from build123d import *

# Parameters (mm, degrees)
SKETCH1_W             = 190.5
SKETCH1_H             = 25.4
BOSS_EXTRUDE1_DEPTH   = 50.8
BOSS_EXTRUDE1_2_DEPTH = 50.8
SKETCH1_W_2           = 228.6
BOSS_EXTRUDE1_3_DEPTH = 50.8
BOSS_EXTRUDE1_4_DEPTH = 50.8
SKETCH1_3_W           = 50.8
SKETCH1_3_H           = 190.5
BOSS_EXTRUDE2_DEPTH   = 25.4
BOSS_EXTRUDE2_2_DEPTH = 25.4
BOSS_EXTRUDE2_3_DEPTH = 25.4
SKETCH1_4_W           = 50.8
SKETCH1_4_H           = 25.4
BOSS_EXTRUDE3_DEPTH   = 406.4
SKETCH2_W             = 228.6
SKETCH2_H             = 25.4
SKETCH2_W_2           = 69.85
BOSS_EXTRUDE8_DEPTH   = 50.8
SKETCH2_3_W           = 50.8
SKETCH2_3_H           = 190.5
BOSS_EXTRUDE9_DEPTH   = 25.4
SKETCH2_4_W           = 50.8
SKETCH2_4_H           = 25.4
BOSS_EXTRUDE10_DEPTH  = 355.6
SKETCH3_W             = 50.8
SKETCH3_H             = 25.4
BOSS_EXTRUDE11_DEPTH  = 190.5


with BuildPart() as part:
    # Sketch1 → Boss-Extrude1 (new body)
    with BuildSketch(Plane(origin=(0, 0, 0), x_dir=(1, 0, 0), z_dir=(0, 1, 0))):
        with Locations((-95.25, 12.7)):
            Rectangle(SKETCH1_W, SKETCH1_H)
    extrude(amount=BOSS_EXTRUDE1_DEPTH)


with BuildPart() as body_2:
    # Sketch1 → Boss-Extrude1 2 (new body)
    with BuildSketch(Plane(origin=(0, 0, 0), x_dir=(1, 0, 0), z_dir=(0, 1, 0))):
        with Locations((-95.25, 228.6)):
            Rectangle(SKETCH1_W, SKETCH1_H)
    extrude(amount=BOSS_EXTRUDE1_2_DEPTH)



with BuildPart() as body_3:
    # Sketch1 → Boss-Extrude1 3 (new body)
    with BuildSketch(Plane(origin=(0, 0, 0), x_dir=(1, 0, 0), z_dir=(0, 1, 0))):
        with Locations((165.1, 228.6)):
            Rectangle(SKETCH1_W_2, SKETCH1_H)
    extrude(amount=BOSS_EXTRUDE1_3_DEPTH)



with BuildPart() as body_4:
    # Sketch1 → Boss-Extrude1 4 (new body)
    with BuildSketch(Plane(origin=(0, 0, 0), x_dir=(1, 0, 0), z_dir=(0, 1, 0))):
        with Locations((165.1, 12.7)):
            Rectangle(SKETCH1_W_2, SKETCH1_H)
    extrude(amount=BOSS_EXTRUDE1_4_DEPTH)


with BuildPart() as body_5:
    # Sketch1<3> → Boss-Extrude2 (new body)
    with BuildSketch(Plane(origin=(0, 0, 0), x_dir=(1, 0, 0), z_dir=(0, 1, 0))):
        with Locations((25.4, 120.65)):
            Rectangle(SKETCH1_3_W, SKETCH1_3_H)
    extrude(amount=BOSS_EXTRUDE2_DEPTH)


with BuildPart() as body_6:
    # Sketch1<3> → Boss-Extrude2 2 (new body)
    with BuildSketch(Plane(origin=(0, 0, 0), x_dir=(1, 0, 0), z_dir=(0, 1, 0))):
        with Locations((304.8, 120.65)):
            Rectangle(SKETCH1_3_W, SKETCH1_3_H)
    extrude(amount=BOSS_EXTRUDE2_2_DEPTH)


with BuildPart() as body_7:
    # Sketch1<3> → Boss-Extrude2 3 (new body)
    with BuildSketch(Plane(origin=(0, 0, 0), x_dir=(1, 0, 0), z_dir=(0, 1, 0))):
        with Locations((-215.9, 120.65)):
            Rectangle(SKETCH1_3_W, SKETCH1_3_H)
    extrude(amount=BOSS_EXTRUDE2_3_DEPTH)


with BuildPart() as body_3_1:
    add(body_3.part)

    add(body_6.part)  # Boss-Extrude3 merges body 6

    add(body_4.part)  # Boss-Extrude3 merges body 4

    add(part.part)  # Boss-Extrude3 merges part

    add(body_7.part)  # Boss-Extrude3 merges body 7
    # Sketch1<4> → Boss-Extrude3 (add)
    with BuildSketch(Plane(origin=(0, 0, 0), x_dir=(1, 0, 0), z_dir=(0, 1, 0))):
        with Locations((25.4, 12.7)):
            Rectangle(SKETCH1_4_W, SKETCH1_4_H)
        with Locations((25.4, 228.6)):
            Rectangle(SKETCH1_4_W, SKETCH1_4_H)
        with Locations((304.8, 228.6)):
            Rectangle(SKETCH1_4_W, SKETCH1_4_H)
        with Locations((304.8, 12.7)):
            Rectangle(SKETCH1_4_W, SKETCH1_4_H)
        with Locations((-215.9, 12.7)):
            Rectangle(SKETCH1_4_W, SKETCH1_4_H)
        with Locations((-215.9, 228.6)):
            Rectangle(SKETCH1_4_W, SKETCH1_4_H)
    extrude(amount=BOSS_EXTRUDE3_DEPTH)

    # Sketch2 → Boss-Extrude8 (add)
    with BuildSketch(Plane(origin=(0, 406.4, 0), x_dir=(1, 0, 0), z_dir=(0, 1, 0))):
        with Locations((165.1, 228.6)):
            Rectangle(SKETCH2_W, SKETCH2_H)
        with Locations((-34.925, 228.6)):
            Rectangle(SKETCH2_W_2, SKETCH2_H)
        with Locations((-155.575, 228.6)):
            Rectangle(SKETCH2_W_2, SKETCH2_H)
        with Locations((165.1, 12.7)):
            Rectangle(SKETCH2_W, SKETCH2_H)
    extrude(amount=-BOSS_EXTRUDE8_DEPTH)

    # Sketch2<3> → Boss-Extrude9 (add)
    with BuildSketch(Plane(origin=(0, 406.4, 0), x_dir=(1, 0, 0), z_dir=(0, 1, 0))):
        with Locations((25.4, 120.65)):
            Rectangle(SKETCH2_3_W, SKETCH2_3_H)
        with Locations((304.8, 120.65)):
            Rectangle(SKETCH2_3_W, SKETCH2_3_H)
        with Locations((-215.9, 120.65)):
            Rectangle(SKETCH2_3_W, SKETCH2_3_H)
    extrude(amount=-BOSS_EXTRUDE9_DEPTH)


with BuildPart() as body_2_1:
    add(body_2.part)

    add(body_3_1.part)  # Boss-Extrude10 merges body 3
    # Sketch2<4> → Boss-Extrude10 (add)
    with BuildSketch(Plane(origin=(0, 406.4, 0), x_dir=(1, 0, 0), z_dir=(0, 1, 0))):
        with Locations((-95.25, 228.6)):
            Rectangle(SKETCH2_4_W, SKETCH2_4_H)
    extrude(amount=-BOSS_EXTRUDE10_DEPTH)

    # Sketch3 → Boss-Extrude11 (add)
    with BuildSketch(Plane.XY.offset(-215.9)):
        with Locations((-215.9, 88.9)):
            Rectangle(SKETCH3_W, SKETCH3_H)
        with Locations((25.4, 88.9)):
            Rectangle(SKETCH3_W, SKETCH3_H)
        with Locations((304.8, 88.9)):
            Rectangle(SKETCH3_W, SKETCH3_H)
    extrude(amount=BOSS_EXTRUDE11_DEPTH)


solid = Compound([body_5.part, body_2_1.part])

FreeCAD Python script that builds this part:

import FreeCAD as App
import Part
import Sketcher
Q = App.Units.Quantity


def add_polygon(sketch, points):
    """Adds a closed chain of lines whose ends are joined by coincident constraints."""
    first, n = sketch.GeometryCount, len(points)
    for a, b in zip(points, points[1:] + points[:1]):
        sketch.addGeometry(Part.LineSegment(App.Vector(*a, 0), App.Vector(*b, 0)), False)
    for i in range(n):
        sketch.addConstraint(Sketcher.Constraint("Coincident", first + i, 2, first + (i + 1) % n, 1))

doc = App.newDocument("Part")
body = doc.addObject("PartDesign::Body", "Body")

# Sketch on XZ plane
sketch1 = doc.addObject("Sketcher::SketchObject", "Sketch")
body.addObject(sketch1)
sketch1.AttachmentSupport = (doc.XZ_Plane, [""])
sketch1.MapMode = "FlatFace"
add_polygon(sketch1, [(-190.5, -25.4), (-190.5, 0), (0, 0), (0, -25.4)])  # lines 0-3
sketch1.addConstraint([
    Sketcher.Constraint("Vertical", 0),
    Sketcher.Constraint("Horizontal", 1),
    Sketcher.Constraint("Vertical", 2),
    Sketcher.Constraint("Horizontal", 3),
    Sketcher.Constraint("Coincident", 1, 2, -1, 1),
    Sketcher.Constraint("DistanceY", 0, 1, 0, 2, Q("1 in")),
    Sketcher.Constraint("DistanceX", 1, 1, 1, 2, Q("7.5 in")),
])
pad1 = doc.addObject("PartDesign::Pad", "Pad")
body.addObject(pad1)
pad1.Profile = sketch1
pad1.Length = Q("2 in")
pad1.Reversed = True
body2 = doc.addObject("PartDesign::Body", "Body001")

# Sketch on XZ plane
sketch2 = doc.addObject("Sketcher::SketchObject", "Sketch001")
body2.addObject(sketch2)
sketch2.AttachmentSupport = (doc.getObject("XZ_Plane001"), [""])
sketch2.MapMode = "FlatFace"
add_polygon(sketch2, [(-190.5, -241.3), (-190.5, -215.9), (0, -215.9), (0, -241.3)])  # lines 0-3
sketch2.addConstraint([
    Sketcher.Constraint("Vertical", 0),
    Sketcher.Constraint("Horizontal", 1),
    Sketcher.Constraint("Vertical", 2),
    Sketcher.Constraint("Horizontal", 3),
    Sketcher.Constraint("PointOnObject", 1, 2, -2),
    Sketcher.Constraint("DistanceY", 0, 1, 0, 2, Q("1 in")),
    Sketcher.Constraint("DistanceX", 1, 1, 1, 2, Q("7.5 in")),
    Sketcher.Constraint("DistanceY", 0, 2, -1, 1, Q("8.5 in")),
])
pad2 = doc.addObject("PartDesign::Pad", "Pad001")
body2.addObject(pad2)
pad2.Profile = sketch2
pad2.Length = Q("2 in")
pad2.Reversed = True
body3 = doc.addObject("PartDesign::Body", "Body002")

# Sketch on XZ plane
sketch3 = doc.addObject("Sketcher::SketchObject", "Sketch002")
body3.addObject(sketch3)
sketch3.AttachmentSupport = (doc.getObject("XZ_Plane002"), [""])
sketch3.MapMode = "FlatFace"
add_polygon(sketch3, [(50.8, -241.3), (50.8, -215.9), (279.4, -215.9), (279.4, -241.3)])  # lines 0-3
sketch3.addConstraint([
    Sketcher.Constraint("Vertical", 0),
    Sketcher.Constraint("Horizontal", 1),
    Sketcher.Constraint("Vertical", 2),
    Sketcher.Constraint("Horizontal", 3),
    Sketcher.Constraint("DistanceX", 1, 1, 1, 2, Q("9 in")),
    Sketcher.Constraint("DistanceY", 0, 1, 0, 2, Q("1 in")),
    Sketcher.Constraint("DistanceX", -1, 1, 0, 2, Q("2 in")),
    Sketcher.Constraint("DistanceY", 0, 2, -1, 1, Q("8.5 in")),
])
pad3 = doc.addObject("PartDesign::Pad", "Pad002")
body3.addObject(pad3)
pad3.Profile = sketch3
pad3.Length = Q("2 in")
pad3.Reversed = True
body4 = doc.addObject("PartDesign::Body", "Body003")

# Sketch on XZ plane
sketch4 = doc.addObject("Sketcher::SketchObject", "Sketch003")
body4.addObject(sketch4)
sketch4.AttachmentSupport = (doc.getObject("XZ_Plane003"), [""])
sketch4.MapMode = "FlatFace"
add_polygon(sketch4, [(50.8, -25.4), (50.8, 0), (279.4, 0), (279.4, -25.4)])  # lines 0-3
sketch4.addConstraint([
    Sketcher.Constraint("Vertical", 0),
    Sketcher.Constraint("Horizontal", 1),
    Sketcher.Constraint("Vertical", 2),
    Sketcher.Constraint("Horizontal", 3),
    Sketcher.Constraint("PointOnObject", 0, 2, -1),
    Sketcher.Constraint("DistanceX", 1, 1, 1, 2, Q("9 in")),
    Sketcher.Constraint("DistanceY", 0, 1, 0, 2, Q("1 in")),
    Sketcher.Constraint("DistanceX", -1, 1, 0, 2, Q("2 in")),
])
pad4 = doc.addObject("PartDesign::Pad", "Pad003")
body4.addObject(pad4)
pad4.Profile = sketch4
pad4.Length = Q("2 in")
pad4.Reversed = True
body5 = doc.addObject("PartDesign::Body", "Body004")

# Sketch on XZ plane
sketch5 = doc.addObject("Sketcher::SketchObject", "Sketch004")
body5.addObject(sketch5)
sketch5.AttachmentSupport = (doc.getObject("XZ_Plane004"), [""])
sketch5.MapMode = "FlatFace"
add_polygon(sketch5, [(0, -215.9), (0, -25.4), (50.8, -25.4), (50.8, -215.9)])  # lines 0-3
sketch5.addConstraint([
    Sketcher.Constraint("Vertical", 0),
    Sketcher.Constraint("Horizontal", 1),
    Sketcher.Constraint("Vertical", 2),
    Sketcher.Constraint("Horizontal", 3),
    Sketcher.Constraint("PointOnObject", 0, 2, -2),
    Sketcher.Constraint("DistanceX", 1, 1, 1, 2, Q("2 in")),
    Sketcher.Constraint("DistanceY", 0, 1, 0, 2, Q("7.5 in")),
    Sketcher.Constraint("DistanceY", 0, 2, -1, 1, Q("1 in")),
])
pad5 = doc.addObject("PartDesign::Pad", "Pad004")
body5.addObject(pad5)
pad5.Profile = sketch5
pad5.Length = Q("1 in")
pad5.Reversed = True
body6 = doc.addObject("PartDesign::Body", "Body005")

# Sketch on XZ plane
sketch6 = doc.addObject("Sketcher::SketchObject", "Sketch005")
body6.addObject(sketch6)
sketch6.AttachmentSupport = (doc.getObject("XZ_Plane005"), [""])
sketch6.MapMode = "FlatFace"
add_polygon(sketch6, [(279.4, -215.9), (279.4, -25.4), (330.2, -25.4), (330.2, -215.9)])  # lines 0-3
sketch6.addConstraint([
    Sketcher.Constraint("Vertical", 0),
    Sketcher.Constraint("Horizontal", 1),
    Sketcher.Constraint("Vertical", 2),
    Sketcher.Constraint("Horizontal", 3),
    Sketcher.Constraint("DistanceX", 1, 1, 1, 2, Q("2 in")),
    Sketcher.Constraint("DistanceY", 0, 1, 0, 2, Q("7.5 in")),
    Sketcher.Constraint("DistanceX", -1, 1, 0, 2, Q("11 in")),
    Sketcher.Constraint("DistanceY", 0, 2, -1, 1, Q("1 in")),
])
pad6 = doc.addObject("PartDesign::Pad", "Pad005")
body6.addObject(pad6)
pad6.Profile = sketch6
pad6.Length = Q("1 in")
pad6.Reversed = True
body7 = doc.addObject("PartDesign::Body", "Body006")

# Sketch on XZ plane
sketch7 = doc.addObject("Sketcher::SketchObject", "Sketch006")
body7.addObject(sketch7)
sketch7.AttachmentSupport = (doc.getObject("XZ_Plane006"), [""])
sketch7.MapMode = "FlatFace"
add_polygon(sketch7, [(-241.3, -215.9), (-241.3, -25.4), (-190.5, -25.4), (-190.5, -215.9)])  # lines 0-3
sketch7.addConstraint([
    Sketcher.Constraint("Vertical", 0),
    Sketcher.Constraint("Horizontal", 1),
    Sketcher.Constraint("Vertical", 2),
    Sketcher.Constraint("Horizontal", 3),
    Sketcher.Constraint("DistanceX", 1, 1, 1, 2, Q("2 in")),
    Sketcher.Constraint("DistanceY", 0, 1, 0, 2, Q("7.5 in")),
    Sketcher.Constraint("DistanceY", 0, 2, -1, 1, Q("1 in")),
    Sketcher.Constraint("DistanceX", 0, 2, -1, 1, Q("9.5 in")),
])
pad7 = doc.addObject("PartDesign::Pad", "Pad006")
body7.addObject(pad7)
pad7.Profile = sketch7
pad7.Length = Q("1 in")
pad7.Reversed = True
body3.AllowCompound = True
doc.recompute()

boolean = doc.addObject("PartDesign::Boolean", "Boolean")
body3.addObject(boolean)
boolean.Type = "Fuse"
boolean.addObjects([body6])
doc.recompute()

boolean2 = doc.addObject("PartDesign::Boolean", "Boolean001")
body3.addObject(boolean2)
boolean2.Type = "Fuse"
boolean2.addObjects([body4])
doc.recompute()

boolean3 = doc.addObject("PartDesign::Boolean", "Boolean002")
body3.addObject(boolean3)
boolean3.Type = "Fuse"
boolean3.addObjects([body])
doc.recompute()

boolean4 = doc.addObject("PartDesign::Boolean", "Boolean003")
body3.addObject(boolean4)
boolean4.Type = "Fuse"
boolean4.addObjects([body7])

# Sketch on XZ plane
sketch8 = doc.addObject("Sketcher::SketchObject", "Sketch007")
body3.addObject(sketch8)
sketch8.AttachmentSupport = (doc.getObject("XZ_Plane002"), [""])
sketch8.MapMode = "FlatFace"
add_polygon(sketch8, [(0, -25.4), (0, 0), (50.8, 0), (50.8, -25.4)])  # lines 0-3
add_polygon(sketch8, [(0, -241.3), (0, -215.9), (50.8, -215.9), (50.8, -241.3)])  # lines 4-7
add_polygon(sketch8, [(279.4, -241.3), (279.4, -215.9), (330.2, -215.9), (330.2, -241.3)])  # lines 8-11
add_polygon(sketch8, [(279.4, -25.4), (279.4, 0), (330.2, 0), (330.2, -25.4)])  # lines 12-15
add_polygon(sketch8, [(-241.3, -25.4), (-241.3, 0), (-190.5, 0), (-190.5, -25.4)])  # lines 16-19
add_polygon(sketch8, [(-241.3, -241.3), (-241.3, -215.9), (-190.5, -215.9), (-190.5, -241.3)])  # lines 20-23
sketch8.addConstraint([
    Sketcher.Constraint("Vertical", 0),
    Sketcher.Constraint("Horizontal", 1),
    Sketcher.Constraint("Vertical", 2),
    Sketcher.Constraint("Horizontal", 3),
    Sketcher.Constraint("Vertical", 4),
    Sketcher.Constraint("Horizontal", 5),
    Sketcher.Constraint("Vertical", 6),
    Sketcher.Constraint("Horizontal", 7),
    Sketcher.Constraint("Vertical", 8),
    Sketcher.Constraint("Horizontal", 9),
    Sketcher.Constraint("Vertical", 10),
    Sketcher.Constraint("Horizontal", 11),
    Sketcher.Constraint("Vertical", 12),
    Sketcher.Constraint("Horizontal", 13),
    Sketcher.Constraint("Vertical", 14),
    Sketcher.Constraint("Horizontal", 15),
    Sketcher.Constraint("Vertical", 16),
    Sketcher.Constraint("Horizontal", 17),
    Sketcher.Constraint("Vertical", 18),
    Sketcher.Constraint("Horizontal", 19),
    Sketcher.Constraint("Vertical", 20),
    Sketcher.Constraint("Horizontal", 21),
    Sketcher.Constraint("Vertical", 22),
    Sketcher.Constraint("Horizontal", 23),
    Sketcher.Constraint("Coincident", 0, 2, -1, 1),
    Sketcher.Constraint("PointOnObject", 4, 2, -2),
    Sketcher.Constraint("PointOnObject", 12, 2, -1),
    Sketcher.Constraint("PointOnObject", 16, 2, -1),
    Sketcher.Constraint("Horizontal", 5, 2, 8, 2),
    Sketcher.Constraint("Horizontal", 7, 2, 10, 2),
    Sketcher.Constraint("Horizontal", 3, 2, 14, 2),
    Sketcher.Constraint("Horizontal", 15, 2, 18, 2),
    Sketcher.Constraint("Horizontal", 9, 2, 20, 2),
    Sketcher.Constraint("Horizontal", 11, 2, 22, 2),
    Sketcher.Constraint("Vertical", 2, 2, 5, 2),
    Sketcher.Constraint("Vertical", 11, 2, 12, 2),
    Sketcher.Constraint("Vertical", 10, 2, 13, 2),
    Sketcher.Constraint("Vertical", 19, 2, 20, 2),
    Sketcher.Constraint("Vertical", 18, 2, 21, 2),
    Sketcher.Constraint("Equal", 7, 9),
    Sketcher.Constraint("Equal", 15, 17),
    Sketcher.Constraint("Equal", 2, 4),
    Sketcher.Constraint("DistanceX", 1, 1, 1, 2, Q("2 in")),
    Sketcher.Constraint("DistanceY", 0, 1, 0, 2, Q("1 in")),
    Sketcher.Constraint("DistanceX", -1, 1, 8, 2, Q("11 in")),
    Sketcher.Constraint("DistanceY", 4, 2, -1, 1, Q("8.5 in")),
    Sketcher.Constraint("DistanceX", 16, 2, -1, 1, Q("9.5 in")),
])
pad8 = doc.addObject("PartDesign::Pad", "Pad007")
body3.addObject(pad8)
pad8.Profile = sketch8
pad8.Length = Q("16 in")
pad8.Reversed = True

# Sketch on XZ plane
sketch9 = doc.addObject("Sketcher::SketchObject", "Sketch008")
body3.addObject(sketch9)
sketch9.AttachmentSupport = (doc.getObject("XZ_Plane002"), [""])
sketch9.MapMode = "FlatFace"
sketch9.AttachmentOffset = App.Placement(App.Vector(0, 0, -16 * 25.4), App.Rotation())
add_polygon(sketch9, [(50.8, -241.3), (50.8, -215.9), (279.4, -215.9), (279.4, -241.3)])  # lines 0-3
add_polygon(sketch9, [(-69.85, -241.3), (-69.85, -215.9), (0, -215.9), (0, -241.3)])  # lines 4-7
add_polygon(sketch9, [(-190.5, -241.3), (-190.5, -215.9), (-120.65, -215.9), (-120.65, -241.3)])  # lines 8-11
add_polygon(sketch9, [(50.8, -25.4), (50.8, 0), (279.4, 0), (279.4, -25.4)])  # lines 12-15
sketch9.addConstraint([
    Sketcher.Constraint("Vertical", 0),
    Sketcher.Constraint("Horizontal", 1),
    Sketcher.Constraint("Vertical", 2),
    Sketcher.Constraint("Horizontal", 3),
    Sketcher.Constraint("Vertical", 4),
    Sketcher.Constraint("Horizontal", 5),
    Sketcher.Constraint("Vertical", 6),
    Sketcher.Constraint("Horizontal", 7),
    Sketcher.Constraint("Vertical", 8),
    Sketcher.Constraint("Horizontal", 9),
    Sketcher.Constraint("Vertical", 10),
    Sketcher.Constraint("Horizontal", 11),
    Sketcher.Constraint("Vertical", 12),
    Sketcher.Constraint("Horizontal", 13),
    Sketcher.Constraint("Vertical", 14),
    Sketcher.Constraint("Horizontal", 15),
    Sketcher.Constraint("PointOnObject", 5, 2, -2),
    Sketcher.Constraint("PointOnObject", 12, 2, -1),
    Sketcher.Constraint("Horizontal", 1, 2, 4, 2),
    Sketcher.Constraint("Horizontal", 3, 2, 6, 2),
    Sketcher.Constraint("Horizontal", 5, 2, 8, 2),
    Sketcher.Constraint("Horizontal", 7, 2, 10, 2),
    Sketcher.Constraint("Vertical", 3, 2, 12, 2),
    Sketcher.Constraint("Vertical", 2, 2, 13, 2),
    Sketcher.Constraint("Equal", 7, 9),
    Sketcher.Constraint("Equal", 10, 12),
    Sketcher.Constraint("DistanceX", 1, 1, 1, 2, Q("9 in")),
    Sketcher.Constraint("DistanceY", 0, 1, 0, 2, Q("1 in")),
    Sketcher.Constraint("DistanceX", -1, 1, 0, 2, Q("2 in")),
    Sketcher.Constraint("DistanceX", 9, 2, 4, 2, Q("2 in")),
    Sketcher.Constraint("DistanceX", 5, 1, 5, 2, Q("2.75 in")),
    Sketcher.Constraint("DistanceY", 0, 2, -1, 1, Q("8.5 in")),
])
pad9 = doc.addObject("PartDesign::Pad", "Pad008")
body3.addObject(pad9)
pad9.Profile = sketch9
pad9.Length = Q("2 in")

# Sketch on XZ plane
sketch10 = doc.addObject("Sketcher::SketchObject", "Sketch009")
body3.addObject(sketch10)
sketch10.AttachmentSupport = (doc.getObject("XZ_Plane002"), [""])
sketch10.MapMode = "FlatFace"
sketch10.AttachmentOffset = App.Placement(App.Vector(0, 0, -16 * 25.4), App.Rotation())
add_polygon(sketch10, [(0, -215.9), (0, -25.4), (50.8, -25.4), (50.8, -215.9)])  # lines 0-3
add_polygon(sketch10, [(279.4, -215.9), (279.4, -25.4), (330.2, -25.4), (330.2, -215.9)])  # lines 4-7
add_polygon(sketch10, [(-241.3, -215.9), (-241.3, -25.4), (-190.5, -25.4), (-190.5, -215.9)])  # lines 8-11
sketch10.addConstraint([
    Sketcher.Constraint("Vertical", 0),
    Sketcher.Constraint("Horizontal", 1),
    Sketcher.Constraint("Vertical", 2),
    Sketcher.Constraint("Horizontal", 3),
    Sketcher.Constraint("Vertical", 4),
    Sketcher.Constraint("Horizontal", 5),
    Sketcher.Constraint("Vertical", 6),
    Sketcher.Constraint("Horizontal", 7),
    Sketcher.Constraint("Vertical", 8),
    Sketcher.Constraint("Horizontal", 9),
    Sketcher.Constraint("Vertical", 10),
    Sketcher.Constraint("Horizontal", 11),
    Sketcher.Constraint("PointOnObject", 0, 2, -2),
    Sketcher.Constraint("Horizontal", 1, 2, 4, 2),
    Sketcher.Constraint("Horizontal", 3, 2, 6, 2),
    Sketcher.Constraint("Horizontal", 5, 2, 8, 2),
    Sketcher.Constraint("Horizontal", 7, 2, 10, 2),
    Sketcher.Constraint("Equal", 3, 5),
    Sketcher.Constraint("Equal", 7, 9),
    Sketcher.Constraint("DistanceX", 1, 1, 1, 2, Q("2 in")),
    Sketcher.Constraint("DistanceY", 0, 1, 0, 2, Q("7.5 in")),
    Sketcher.Constraint("DistanceY", 0, 2, -1, 1, Q("1 in")),
    Sketcher.Constraint("DistanceX", -1, 1, 4, 2, Q("11 in")),
    Sketcher.Constraint("DistanceX", 8, 2, -1, 1, Q("9.5 in")),
])
pad10 = doc.addObject("PartDesign::Pad", "Pad009")
body3.addObject(pad10)
pad10.Profile = sketch10
pad10.Length = Q("1 in")
doc.recompute()

boolean5 = doc.addObject("PartDesign::Boolean", "Boolean004")
body2.addObject(boolean5)
boolean5.Type = "Fuse"
boolean5.addObjects([body3])

# Sketch on XZ plane
sketch11 = doc.addObject("Sketcher::SketchObject", "Sketch010")
body2.addObject(sketch11)
sketch11.AttachmentSupport = (doc.getObject("XZ_Plane001"), [""])
sketch11.MapMode = "FlatFace"
sketch11.AttachmentOffset = App.Placement(App.Vector(0, 0, -16 * 25.4), App.Rotation())
add_polygon(sketch11, [(-120.65, -241.3), (-120.65, -215.9), (-69.85, -215.9), (-69.85, -241.3)])  # lines 0-3
sketch11.addConstraint([
    Sketcher.Constraint("Vertical", 0),
    Sketcher.Constraint("Horizontal", 1),
    Sketcher.Constraint("Vertical", 2),
    Sketcher.Constraint("Horizontal", 3),
    Sketcher.Constraint("DistanceX", 1, 1, 1, 2, Q("2 in")),
    Sketcher.Constraint("DistanceY", 0, 1, 0, 2, Q("1 in")),
    Sketcher.Constraint("DistanceY", 0, 2, -1, 1, Q("8.5 in")),
    Sketcher.Constraint("DistanceX", 0, 2, -1, 1, Q("4.75 in")),
])
pad11 = doc.addObject("PartDesign::Pad", "Pad010")
body2.addObject(pad11)
pad11.Profile = sketch11
pad11.Length = Q("14 in")

# Sketch on XY plane
sketch12 = doc.addObject("Sketcher::SketchObject", "Sketch011")
body2.addObject(sketch12)
sketch12.AttachmentSupport = (doc.getObject("XY_Plane001"), [""])
sketch12.MapMode = "FlatFace"
sketch12.AttachmentOffset = App.Placement(App.Vector(0, 0, -8.5 * 25.4), App.Rotation())
add_polygon(sketch12, [(-241.3, 101.6), (-241.3, 76.2), (-190.5, 76.2), (-190.5, 101.6)])  # lines 0-3
add_polygon(sketch12, [(0, 101.6), (0, 76.2), (50.8, 76.2), (50.8, 101.6)])  # lines 4-7
add_polygon(sketch12, [(279.4, 101.6), (279.4, 76.2), (330.2, 76.2), (330.2, 101.6)])  # lines 8-11
sketch12.addConstraint([
    Sketcher.Constraint("Vertical", 0),
    Sketcher.Constraint("Horizontal", 1),
    Sketcher.Constraint("Vertical", 2),
    Sketcher.Constraint("Horizontal", 3),
    Sketcher.Constraint("Vertical", 4),
    Sketcher.Constraint("Horizontal", 5),
    Sketcher.Constraint("Vertical", 6),
    Sketcher.Constraint("Horizontal", 7),
    Sketcher.Constraint("Vertical", 8),
    Sketcher.Constraint("Horizontal", 9),
    Sketcher.Constraint("Vertical", 10),
    Sketcher.Constraint("Horizontal", 11),
    Sketcher.Constraint("PointOnObject", 4, 2, -2),
    Sketcher.Constraint("Horizontal", 1, 2, 4, 2),
    Sketcher.Constraint("Horizontal", 3, 2, 6, 2),
    Sketcher.Constraint("Horizontal", 5, 2, 8, 2),
    Sketcher.Constraint("Horizontal", 7, 2, 10, 2),
    Sketcher.Constraint("Equal", 3, 5),
    Sketcher.Constraint("Equal", 7, 9),
    Sketcher.Constraint("DistanceX", 1, 1, 1, 2, Q("2 in")),
    Sketcher.Constraint("DistanceY", 0, 2, 0, 1, Q("1 in")),
    Sketcher.Constraint("DistanceY", -1, 1, 0, 2, Q("3 in")),
    Sketcher.Constraint("DistanceX", -1, 1, 8, 2, Q("11 in")),
    Sketcher.Constraint("DistanceX", 0, 2, -1, 1, Q("9.5 in")),
])
pad12 = doc.addObject("PartDesign::Pad", "Pad011")
body2.addObject(pad12)
pad12.Profile = sketch12
pad12.Length = Q("7.5 in")

doc.recompute()
